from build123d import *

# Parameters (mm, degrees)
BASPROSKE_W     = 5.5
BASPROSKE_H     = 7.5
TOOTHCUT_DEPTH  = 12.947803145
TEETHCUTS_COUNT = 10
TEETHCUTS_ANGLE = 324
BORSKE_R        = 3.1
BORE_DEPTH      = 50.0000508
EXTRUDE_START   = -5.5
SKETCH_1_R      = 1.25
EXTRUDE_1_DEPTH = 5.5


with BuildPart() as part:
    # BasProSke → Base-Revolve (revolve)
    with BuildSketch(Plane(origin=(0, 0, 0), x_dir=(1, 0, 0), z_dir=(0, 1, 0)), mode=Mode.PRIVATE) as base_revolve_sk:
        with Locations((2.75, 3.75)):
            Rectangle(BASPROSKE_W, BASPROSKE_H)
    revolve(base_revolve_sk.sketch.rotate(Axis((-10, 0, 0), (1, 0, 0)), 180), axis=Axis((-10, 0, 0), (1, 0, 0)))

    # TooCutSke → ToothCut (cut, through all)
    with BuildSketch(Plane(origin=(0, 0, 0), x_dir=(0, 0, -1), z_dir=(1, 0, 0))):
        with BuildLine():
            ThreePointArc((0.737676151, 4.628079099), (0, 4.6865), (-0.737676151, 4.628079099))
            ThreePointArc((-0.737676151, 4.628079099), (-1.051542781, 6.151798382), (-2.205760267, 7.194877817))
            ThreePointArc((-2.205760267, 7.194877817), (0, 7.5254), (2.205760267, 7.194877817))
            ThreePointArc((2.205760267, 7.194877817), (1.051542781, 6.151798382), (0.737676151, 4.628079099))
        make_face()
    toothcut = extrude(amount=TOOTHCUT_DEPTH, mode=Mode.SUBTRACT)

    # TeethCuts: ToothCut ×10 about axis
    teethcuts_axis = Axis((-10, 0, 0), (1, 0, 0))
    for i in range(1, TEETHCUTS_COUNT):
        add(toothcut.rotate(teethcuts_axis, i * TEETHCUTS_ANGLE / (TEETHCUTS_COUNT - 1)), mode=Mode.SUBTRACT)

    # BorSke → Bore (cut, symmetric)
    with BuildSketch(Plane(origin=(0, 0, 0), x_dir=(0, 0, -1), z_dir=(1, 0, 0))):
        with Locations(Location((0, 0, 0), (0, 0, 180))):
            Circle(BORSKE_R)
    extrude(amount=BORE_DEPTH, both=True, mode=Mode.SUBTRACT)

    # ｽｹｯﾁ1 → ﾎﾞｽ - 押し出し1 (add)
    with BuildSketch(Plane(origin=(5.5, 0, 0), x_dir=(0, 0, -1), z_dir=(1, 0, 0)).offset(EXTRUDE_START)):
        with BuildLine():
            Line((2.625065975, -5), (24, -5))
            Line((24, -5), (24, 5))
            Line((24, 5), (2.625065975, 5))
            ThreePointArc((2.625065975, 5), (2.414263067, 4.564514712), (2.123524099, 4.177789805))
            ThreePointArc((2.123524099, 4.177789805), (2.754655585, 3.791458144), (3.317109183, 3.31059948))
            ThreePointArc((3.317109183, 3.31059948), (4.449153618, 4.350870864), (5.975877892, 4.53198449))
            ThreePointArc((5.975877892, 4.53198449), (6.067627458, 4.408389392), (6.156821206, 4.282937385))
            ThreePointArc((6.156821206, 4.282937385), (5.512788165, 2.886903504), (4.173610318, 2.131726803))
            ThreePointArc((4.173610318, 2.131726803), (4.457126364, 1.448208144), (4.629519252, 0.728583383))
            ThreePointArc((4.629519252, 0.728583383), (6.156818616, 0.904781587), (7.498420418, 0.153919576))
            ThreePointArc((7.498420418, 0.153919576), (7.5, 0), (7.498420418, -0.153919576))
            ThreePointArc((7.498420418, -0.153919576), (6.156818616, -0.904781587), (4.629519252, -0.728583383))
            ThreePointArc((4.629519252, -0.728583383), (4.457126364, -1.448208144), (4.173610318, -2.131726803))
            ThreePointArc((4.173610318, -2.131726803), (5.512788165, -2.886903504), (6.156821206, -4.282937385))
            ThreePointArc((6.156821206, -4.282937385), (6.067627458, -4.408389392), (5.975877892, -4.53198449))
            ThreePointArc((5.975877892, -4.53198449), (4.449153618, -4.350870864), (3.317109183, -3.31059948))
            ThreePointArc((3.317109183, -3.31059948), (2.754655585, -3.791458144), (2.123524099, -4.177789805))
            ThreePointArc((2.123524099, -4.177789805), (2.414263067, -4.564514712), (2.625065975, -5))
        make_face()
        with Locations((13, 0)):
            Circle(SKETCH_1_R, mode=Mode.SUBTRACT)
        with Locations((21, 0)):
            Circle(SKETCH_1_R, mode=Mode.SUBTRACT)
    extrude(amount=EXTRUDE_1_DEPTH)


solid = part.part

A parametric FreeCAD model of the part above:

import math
import FreeCAD as App
import Part
import Sketcher
Q = App.Units.Quantity

doc = App.newDocument("Part")
body = doc.addObject("PartDesign::Body", "Body")

# Sketch on XZ plane
sketch1 = body.newObject("Sketcher::SketchObject", "Sketch")
sketch1.AttachmentSupport = (doc.getObject("XZ_Plane"), [""])
sketch1.MapMode = "FlatFace"
sketch1.addGeometry([
    Part.LineSegment(App.Vector(0, -8, 0), App.Vector(0, 0, 0)),
    Part.LineSegment(App.Vector(0, 0, 0), App.Vector(6, 0, 0)),
    Part.LineSegment(App.Vector(6, 0, 0), App.Vector(6, -8, 0)),
    Part.LineSegment(App.Vector(6, -8, 0), App.Vector(0, -8, 0)),
], False)
sketch1.addConstraint([
    Sketcher.Constraint("Coincident", 0, 2, 1, 1),
    Sketcher.Constraint("Coincident", 1, 2, 2, 1),
    Sketcher.Constraint("Coincident", 2, 2, 3, 1),
    Sketcher.Constraint("Coincident", 3, 2, 0, 1),
    Sketcher.Constraint("Vertical", 0),
    Sketcher.Constraint("Horizontal", 1),
    Sketcher.Constraint("Vertical", 2),
    Sketcher.Constraint("Horizontal", 3),
    Sketcher.Constraint("Coincident", 0, 2, -1, 1),
    Sketcher.Constraint("DistanceX", 1, 1, 1, 2, Q("5.5 mm")),
    Sketcher.Constraint("DistanceY", 0, 1, 0, 2, Q("7.5 mm")),
])
revolution = body.newObject("PartDesign::Revolution", "Revolution")
revolution.Profile = sketch1
revolution.ReferenceAxis = (sketch1, ["H_Axis"])
revolution.Angle = 360

# Sketch on YZ plane
sketch2 = body.newObject("Sketcher::SketchObject", "Sketch001")
sketch2.AttachmentSupport = (doc.getObject("YZ_Plane"), [""])
sketch2.MapMode = "FlatFace"
sketch2.addGeometry([
    Part.ArcOfCircle(Part.Circle(App.Vector(0, 0, 0), App.Vector(0, 0, 1), 4.7), math.radians(-9.06), math.radians(9.06)),
    Part.ArcOfCircle(Part.Circle(App.Vector(4.9, -3.2, 0), App.Vector(0, 0, 1), 2.5), math.radians(24), math.radians(96)),
    Part.ArcOfCircle(Part.Circle(App.Vector(0, 0, 0), App.Vector(0, 0, 1), 7.5), math.radians(-17), math.radians(17)),
    Part.ArcOfCircle(Part.Circle(App.Vector(4.9, 3.2, 0), App.Vector(0, 0, 1), 2.5), math.radians(-96), math.radians(-24)),
], False)
sketch2.addConstraint([
    Sketcher.Constraint("Coincident", 0, 1, 1, 2),
    Sketcher.Constraint("Coincident", 1, 1, 2, 1),
    Sketcher.Constraint("Coincident", 2, 2, 3, 2),
    Sketcher.Constraint("Coincident", 3, 1, 0, 2),
    Sketcher.Constraint("Coincident", 0, 3, -1, 1),
    Sketcher.Constraint("Coincident", 2, 3, -1, 1),
    Sketcher.Constraint("Equal", 1, 3),
    Sketcher.Constraint("Symmetric", 1, 3, 3, 3, -1),
    Sketcher.Constraint("Radius", 1, Q("2.5 mm")),
    Sketcher.Constraint("Radius", 0, Q("4.6865 mm")),
    Sketcher.Constraint("Radius", 2, Q("7.5254 mm")),
    Sketcher.Constraint("DistanceY", 1, 3, 1, 1, Q("1.015901 mm")),
    Sketcher.Constraint("DistanceX", 0, 1, 1, 1, Q("2.566799 mm")),
])
pocket1 = body.newObject("PartDesign::Pocket", "Pocket")
pocket1.Profile = sketch2
pocket1.Type = "ThroughAll"
pocket1.Reversed = True
doc.recompute()

polarpattern = body.newObject("PartDesign::PolarPattern", "PolarPattern")
polarpattern.Originals = [pocket1]
polarpattern.Axis = (doc.getObject("X_Axis"), [""])
polarpattern.Angle = 360
polarpattern.Occurrences = 10
body.Tip = polarpattern

# Sketch on YZ plane
sketch3 = body.newObject("Sketcher::SketchObject", "Sketch002")
sketch3.AttachmentSupport = (doc.getObject("YZ_Plane"), [""])
sketch3.MapMode = "FlatFace"
sketch3.addGeometry(Part.Circle(App.Vector(0, 0, 0), App.Vector(0, 0, 1), 3.1), False)
sketch3.addConstraint([
    Sketcher.Constraint("Coincident", 0, 3, -1, 1),
    Sketcher.Constraint("Diameter", 0, Q("6.2 mm")),
])
pocket2 = body.newObject("PartDesign::Pocket", "Pocket001")
pocket2.Profile = sketch3
pocket2.Length = 100.000102
pocket2.Midplane = True

# Sketch on YZ plane
sketch4 = body.newObject("Sketcher::SketchObject", "Sketch003")
sketch4.AttachmentSupport = (doc.getObject("YZ_Plane"), [""])
sketch4.MapMode = "FlatFace"
sketch4.addGeometry([
    Part.LineSegment(App.Vector(-5, -2.63, 0), App.Vector(-5, -24, 0)),  # 0
    Part.LineSegment(App.Vector(-5, -24, 0), App.Vector(5, -24, 0)),  # 1
    Part.LineSegment(App.Vector(5, -24, 0), App.Vector(5, -2.63, 0)),  # 2
    Part.ArcOfCircle(Part.Circle(App.Vector(5.87, -0.28, 0), App.Vector(0, 0, 1), 2.5), math.radians(-132), math.radians(-110)),  # 3
    Part.ArcOfCircle(Part.Circle(App.Vector(0, 0, 0), App.Vector(0, 0, 1), 4.69), math.radians(-45.06), math.radians(-26.94)),  # 4
    Part.ArcOfCircle(Part.Circle(App.Vector(2.08, -5.49, 0), App.Vector(0, 0, 1), 2.5), math.radians(-11), math.radians(60)),  # 5
    Part.ArcOfCircle(Part.Circle(App.Vector(0, 0, 0), App.Vector(0, 0, 1), 7.5), math.radians(-55.18), math.radians(-52.82)),  # 6
    Part.ArcOfCircle(Part.Circle(App.Vector(4.58, -3.67, 0), App.Vector(0, 0, 1), 2.5), math.radians(-168), math.radians(-97)),  # 7
    Part.ArcOfCircle(Part.Circle(App.Vector(0, 0, 0), App.Vector(0, 0, 1), 4.69), math.radians(-81.06), math.radians(-62.94)),  # 8
    Part.ArcOfCircle(Part.Circle(App.Vector(-1.55, -5.67, 0), App.Vector(0, 0, 1), 2.5), math.radians(-47), math.radians(24)),  # 9
    Part.ArcOfCircle(Part.Circle(App.Vector(0, 0, 0), App.Vector(0, 0, 1), 7.5), math.radians(-91.18), math.radians(-88.82)),  # 10
    Part.ArcOfCircle(Part.Circle(App.Vector(1.55, -5.67, 0), App.Vector(0, 0, 1), 2.5), math.radians(156), math.radians(227)),  # 11
    Part.ArcOfCircle(Part.Circle(App.Vector(0, 0, 0), App.Vector(0, 0, 1), 4.69), math.radians(-117.06), math.radians(-98.94)),  # 12
    Part.ArcOfCircle(Part.Circle(App.Vector(-4.58, -3.67, 0), App.Vector(0, 0, 1), 2.5), math.radians(-83), math.radians(-12)),  # 13
    Part.ArcOfCircle(Part.Circle(App.Vector(0, 0, 0), App.Vector(0, 0, 1), 7.5), math.radians(-127.18), math.radians(-124.82)),  # 14
    Part.ArcOfCircle(Part.Circle(App.Vector(-2.08, -5.49, 0), App.Vector(0, 0, 1), 2.5), math.radians(120), math.radians(191)),  # 15
    Part.ArcOfCircle(Part.Circle(App.Vector(0, 0, 0), App.Vector(0, 0, 1), 4.69), math.radians(-153.06), math.radians(-134.94)),  # 16
    Part.ArcOfCircle(Part.Circle(App.Vector(-5.87, -0.28, 0), App.Vector(0, 0, 1), 2.5), math.radians(-70), math.radians(-48)),  # 17
    Part.Circle(App.Vector(0, -13, 0), App.Vector(0, 0, 1), 1.25),  # 18
    Part.Circle(App.Vector(0, -21, 0), App.Vector(0, 0, 1), 1.25),  # 19
], False)
sketch4.addConstraint([
    Sketcher.Constraint("Coincident", 0, 2, 1, 1),
    Sketcher.Constraint("Coincident", 1, 2, 2, 1),
    Sketcher.Constraint("Coincident", 2, 2, 3, 2),
    Sketcher.Constraint("Coincident", 3, 1, 4, 2),
    Sketcher.Constraint("Coincident", 4, 1, 5, 2),
    Sketcher.Constraint("Coincident", 5, 1, 6, 2),
    Sketcher.Constraint("Coincident", 6, 1, 7, 2),
    Sketcher.Constraint("Coincident", 7, 1, 8, 2),
    Sketcher.Constraint("Coincident", 8, 1, 9, 2),
    Sketcher.Constraint("Coincident", 9, 1, 10, 2),
    Sketcher.Constraint("Coincident", 10, 1, 11, 2),
    Sketcher.Constraint("Coincident", 11, 1, 12, 2),
    Sketcher.Constraint("Coincident", 12, 1, 13, 2),
    Sketcher.Constraint("Coincident", 13, 1, 14, 2),
    Sketcher.Constraint("Coincident", 14, 1, 15, 2),
    Sketcher.Constraint("Coincident", 15, 1, 16, 2),
    Sketcher.Constraint("Coincident", 16, 1, 17, 2),
    Sketcher.Constraint("Coincident", 17, 1, 0, 1),
    Sketcher.Constraint("Vertical", 0),
    Sketcher.Constraint("Horizontal", 1),
    Sketcher.Constraint("Vertical", 2),
    Sketcher.Constraint("Coincident", 4, 3, -1, 1),
    Sketcher.Constraint("Coincident", 6, 3, -1, 1),
    Sketcher.Constraint("Coincident", 8, 3, -1, 1),
    Sketcher.Constraint("Coincident", 10, 3, -1, 1),
    Sketcher.Constraint("Coincident", 12, 3, -1, 1),
    Sketcher.Constraint("Coincident", 14, 3, -1, 1),
    Sketcher.Constraint("Coincident", 16, 3, -1, 1),
    Sketcher.Constraint("Equal", 3, 5),
    Sketcher.Constraint("Equal", 5, 7),
    Sketcher.Constraint("Equal", 4, 8),
    Sketcher.Constraint("Equal", 7, 9),
    Sketcher.Constraint("Equal", 6, 10),
    Sketcher.Constraint("Equal", 9, 11),
    Sketcher.Constraint("Equal", 8, 12),
    Sketcher.Constraint("Equal", 11, 13),
    Sketcher.Constraint("Equal", 10, 14),
    Sketcher.Constraint("Equal", 13, 15),
    Sketcher.Constraint("Equal", 12, 16),
    Sketcher.Constraint("Equal", 15, 17),
    Sketcher.Constraint("Equal", 18, 19),
    Sketcher.Constraint("Symmetric", 9, 3, 11, 3, -2),
    Sketcher.Constraint("Symmetric", 7, 3, 13, 3, -2),
    Sketcher.Constraint("Symmetric", 5, 3, 15, 3, -2),
    Sketcher.Constraint("Symmetric", 3, 3, 17, 3, -2),
    Sketcher.Constraint("PointOnObject", 18, 3, -2),
    Sketcher.Constraint("PointOnObject", 19, 3, -2),
    Sketcher.Constraint("Horizontal", 2, 2, 17, 1),
    Sketcher.Constraint("Diameter", 18, Q("2.5 mm")),
    Sketcher.Constraint("Radius", 3, Q("2.5 mm")),
    Sketcher.Constraint("Radius", 6, Q("7.5 mm")),
    Sketcher.Constraint("DistanceX", 1, 1, 1, 2, Q("10 mm")),
    Sketcher.Constraint("DistanceY", 18, 3, -1, 1, Q("13 mm")),
    Sketcher.Constraint("DistanceY", 19, 3, -1, 1, Q("21 mm")),
    Sketcher.Constraint("DistanceY", 0, 2, -1, 1, Q("24 mm")),
    Sketcher.Constraint("Radius", 4, Q("4.6865 mm")),
    Sketcher.Constraint("DistanceX", -1, 1, 3, 3, Q("5.866401 mm")),
    Sketcher.Constraint("DistanceX", -1, 1, 4, 1, Q("3.310599 mm")),
    Sketcher.Constraint("DistanceY", 7, 1, 4, 1, Q("0.856501 mm")),
    Sketcher.Constraint("DistanceX", 11, 3, 7, 1, Q("0.585202 mm")),
    Sketcher.Constraint("DistanceY", 9, 1, 8, 1, Q("2.868901 mm")),
    Sketcher.Constraint("DistanceY", 13, 1, 11, 1, Q("1.527302 mm")),
    Sketcher.Constraint("DistanceY", 0, 2, 0, 1, Q("21.374934 mm")),
    Sketcher.Constraint("DistanceX", -1, 1, 5, 3, Q("2.07911 mm")),
])
pad1 = body.newObject("PartDesign::Pad", "Pad")
pad1.Profile = sketch4
pad1.Length = 5.5

doc.recompute()
